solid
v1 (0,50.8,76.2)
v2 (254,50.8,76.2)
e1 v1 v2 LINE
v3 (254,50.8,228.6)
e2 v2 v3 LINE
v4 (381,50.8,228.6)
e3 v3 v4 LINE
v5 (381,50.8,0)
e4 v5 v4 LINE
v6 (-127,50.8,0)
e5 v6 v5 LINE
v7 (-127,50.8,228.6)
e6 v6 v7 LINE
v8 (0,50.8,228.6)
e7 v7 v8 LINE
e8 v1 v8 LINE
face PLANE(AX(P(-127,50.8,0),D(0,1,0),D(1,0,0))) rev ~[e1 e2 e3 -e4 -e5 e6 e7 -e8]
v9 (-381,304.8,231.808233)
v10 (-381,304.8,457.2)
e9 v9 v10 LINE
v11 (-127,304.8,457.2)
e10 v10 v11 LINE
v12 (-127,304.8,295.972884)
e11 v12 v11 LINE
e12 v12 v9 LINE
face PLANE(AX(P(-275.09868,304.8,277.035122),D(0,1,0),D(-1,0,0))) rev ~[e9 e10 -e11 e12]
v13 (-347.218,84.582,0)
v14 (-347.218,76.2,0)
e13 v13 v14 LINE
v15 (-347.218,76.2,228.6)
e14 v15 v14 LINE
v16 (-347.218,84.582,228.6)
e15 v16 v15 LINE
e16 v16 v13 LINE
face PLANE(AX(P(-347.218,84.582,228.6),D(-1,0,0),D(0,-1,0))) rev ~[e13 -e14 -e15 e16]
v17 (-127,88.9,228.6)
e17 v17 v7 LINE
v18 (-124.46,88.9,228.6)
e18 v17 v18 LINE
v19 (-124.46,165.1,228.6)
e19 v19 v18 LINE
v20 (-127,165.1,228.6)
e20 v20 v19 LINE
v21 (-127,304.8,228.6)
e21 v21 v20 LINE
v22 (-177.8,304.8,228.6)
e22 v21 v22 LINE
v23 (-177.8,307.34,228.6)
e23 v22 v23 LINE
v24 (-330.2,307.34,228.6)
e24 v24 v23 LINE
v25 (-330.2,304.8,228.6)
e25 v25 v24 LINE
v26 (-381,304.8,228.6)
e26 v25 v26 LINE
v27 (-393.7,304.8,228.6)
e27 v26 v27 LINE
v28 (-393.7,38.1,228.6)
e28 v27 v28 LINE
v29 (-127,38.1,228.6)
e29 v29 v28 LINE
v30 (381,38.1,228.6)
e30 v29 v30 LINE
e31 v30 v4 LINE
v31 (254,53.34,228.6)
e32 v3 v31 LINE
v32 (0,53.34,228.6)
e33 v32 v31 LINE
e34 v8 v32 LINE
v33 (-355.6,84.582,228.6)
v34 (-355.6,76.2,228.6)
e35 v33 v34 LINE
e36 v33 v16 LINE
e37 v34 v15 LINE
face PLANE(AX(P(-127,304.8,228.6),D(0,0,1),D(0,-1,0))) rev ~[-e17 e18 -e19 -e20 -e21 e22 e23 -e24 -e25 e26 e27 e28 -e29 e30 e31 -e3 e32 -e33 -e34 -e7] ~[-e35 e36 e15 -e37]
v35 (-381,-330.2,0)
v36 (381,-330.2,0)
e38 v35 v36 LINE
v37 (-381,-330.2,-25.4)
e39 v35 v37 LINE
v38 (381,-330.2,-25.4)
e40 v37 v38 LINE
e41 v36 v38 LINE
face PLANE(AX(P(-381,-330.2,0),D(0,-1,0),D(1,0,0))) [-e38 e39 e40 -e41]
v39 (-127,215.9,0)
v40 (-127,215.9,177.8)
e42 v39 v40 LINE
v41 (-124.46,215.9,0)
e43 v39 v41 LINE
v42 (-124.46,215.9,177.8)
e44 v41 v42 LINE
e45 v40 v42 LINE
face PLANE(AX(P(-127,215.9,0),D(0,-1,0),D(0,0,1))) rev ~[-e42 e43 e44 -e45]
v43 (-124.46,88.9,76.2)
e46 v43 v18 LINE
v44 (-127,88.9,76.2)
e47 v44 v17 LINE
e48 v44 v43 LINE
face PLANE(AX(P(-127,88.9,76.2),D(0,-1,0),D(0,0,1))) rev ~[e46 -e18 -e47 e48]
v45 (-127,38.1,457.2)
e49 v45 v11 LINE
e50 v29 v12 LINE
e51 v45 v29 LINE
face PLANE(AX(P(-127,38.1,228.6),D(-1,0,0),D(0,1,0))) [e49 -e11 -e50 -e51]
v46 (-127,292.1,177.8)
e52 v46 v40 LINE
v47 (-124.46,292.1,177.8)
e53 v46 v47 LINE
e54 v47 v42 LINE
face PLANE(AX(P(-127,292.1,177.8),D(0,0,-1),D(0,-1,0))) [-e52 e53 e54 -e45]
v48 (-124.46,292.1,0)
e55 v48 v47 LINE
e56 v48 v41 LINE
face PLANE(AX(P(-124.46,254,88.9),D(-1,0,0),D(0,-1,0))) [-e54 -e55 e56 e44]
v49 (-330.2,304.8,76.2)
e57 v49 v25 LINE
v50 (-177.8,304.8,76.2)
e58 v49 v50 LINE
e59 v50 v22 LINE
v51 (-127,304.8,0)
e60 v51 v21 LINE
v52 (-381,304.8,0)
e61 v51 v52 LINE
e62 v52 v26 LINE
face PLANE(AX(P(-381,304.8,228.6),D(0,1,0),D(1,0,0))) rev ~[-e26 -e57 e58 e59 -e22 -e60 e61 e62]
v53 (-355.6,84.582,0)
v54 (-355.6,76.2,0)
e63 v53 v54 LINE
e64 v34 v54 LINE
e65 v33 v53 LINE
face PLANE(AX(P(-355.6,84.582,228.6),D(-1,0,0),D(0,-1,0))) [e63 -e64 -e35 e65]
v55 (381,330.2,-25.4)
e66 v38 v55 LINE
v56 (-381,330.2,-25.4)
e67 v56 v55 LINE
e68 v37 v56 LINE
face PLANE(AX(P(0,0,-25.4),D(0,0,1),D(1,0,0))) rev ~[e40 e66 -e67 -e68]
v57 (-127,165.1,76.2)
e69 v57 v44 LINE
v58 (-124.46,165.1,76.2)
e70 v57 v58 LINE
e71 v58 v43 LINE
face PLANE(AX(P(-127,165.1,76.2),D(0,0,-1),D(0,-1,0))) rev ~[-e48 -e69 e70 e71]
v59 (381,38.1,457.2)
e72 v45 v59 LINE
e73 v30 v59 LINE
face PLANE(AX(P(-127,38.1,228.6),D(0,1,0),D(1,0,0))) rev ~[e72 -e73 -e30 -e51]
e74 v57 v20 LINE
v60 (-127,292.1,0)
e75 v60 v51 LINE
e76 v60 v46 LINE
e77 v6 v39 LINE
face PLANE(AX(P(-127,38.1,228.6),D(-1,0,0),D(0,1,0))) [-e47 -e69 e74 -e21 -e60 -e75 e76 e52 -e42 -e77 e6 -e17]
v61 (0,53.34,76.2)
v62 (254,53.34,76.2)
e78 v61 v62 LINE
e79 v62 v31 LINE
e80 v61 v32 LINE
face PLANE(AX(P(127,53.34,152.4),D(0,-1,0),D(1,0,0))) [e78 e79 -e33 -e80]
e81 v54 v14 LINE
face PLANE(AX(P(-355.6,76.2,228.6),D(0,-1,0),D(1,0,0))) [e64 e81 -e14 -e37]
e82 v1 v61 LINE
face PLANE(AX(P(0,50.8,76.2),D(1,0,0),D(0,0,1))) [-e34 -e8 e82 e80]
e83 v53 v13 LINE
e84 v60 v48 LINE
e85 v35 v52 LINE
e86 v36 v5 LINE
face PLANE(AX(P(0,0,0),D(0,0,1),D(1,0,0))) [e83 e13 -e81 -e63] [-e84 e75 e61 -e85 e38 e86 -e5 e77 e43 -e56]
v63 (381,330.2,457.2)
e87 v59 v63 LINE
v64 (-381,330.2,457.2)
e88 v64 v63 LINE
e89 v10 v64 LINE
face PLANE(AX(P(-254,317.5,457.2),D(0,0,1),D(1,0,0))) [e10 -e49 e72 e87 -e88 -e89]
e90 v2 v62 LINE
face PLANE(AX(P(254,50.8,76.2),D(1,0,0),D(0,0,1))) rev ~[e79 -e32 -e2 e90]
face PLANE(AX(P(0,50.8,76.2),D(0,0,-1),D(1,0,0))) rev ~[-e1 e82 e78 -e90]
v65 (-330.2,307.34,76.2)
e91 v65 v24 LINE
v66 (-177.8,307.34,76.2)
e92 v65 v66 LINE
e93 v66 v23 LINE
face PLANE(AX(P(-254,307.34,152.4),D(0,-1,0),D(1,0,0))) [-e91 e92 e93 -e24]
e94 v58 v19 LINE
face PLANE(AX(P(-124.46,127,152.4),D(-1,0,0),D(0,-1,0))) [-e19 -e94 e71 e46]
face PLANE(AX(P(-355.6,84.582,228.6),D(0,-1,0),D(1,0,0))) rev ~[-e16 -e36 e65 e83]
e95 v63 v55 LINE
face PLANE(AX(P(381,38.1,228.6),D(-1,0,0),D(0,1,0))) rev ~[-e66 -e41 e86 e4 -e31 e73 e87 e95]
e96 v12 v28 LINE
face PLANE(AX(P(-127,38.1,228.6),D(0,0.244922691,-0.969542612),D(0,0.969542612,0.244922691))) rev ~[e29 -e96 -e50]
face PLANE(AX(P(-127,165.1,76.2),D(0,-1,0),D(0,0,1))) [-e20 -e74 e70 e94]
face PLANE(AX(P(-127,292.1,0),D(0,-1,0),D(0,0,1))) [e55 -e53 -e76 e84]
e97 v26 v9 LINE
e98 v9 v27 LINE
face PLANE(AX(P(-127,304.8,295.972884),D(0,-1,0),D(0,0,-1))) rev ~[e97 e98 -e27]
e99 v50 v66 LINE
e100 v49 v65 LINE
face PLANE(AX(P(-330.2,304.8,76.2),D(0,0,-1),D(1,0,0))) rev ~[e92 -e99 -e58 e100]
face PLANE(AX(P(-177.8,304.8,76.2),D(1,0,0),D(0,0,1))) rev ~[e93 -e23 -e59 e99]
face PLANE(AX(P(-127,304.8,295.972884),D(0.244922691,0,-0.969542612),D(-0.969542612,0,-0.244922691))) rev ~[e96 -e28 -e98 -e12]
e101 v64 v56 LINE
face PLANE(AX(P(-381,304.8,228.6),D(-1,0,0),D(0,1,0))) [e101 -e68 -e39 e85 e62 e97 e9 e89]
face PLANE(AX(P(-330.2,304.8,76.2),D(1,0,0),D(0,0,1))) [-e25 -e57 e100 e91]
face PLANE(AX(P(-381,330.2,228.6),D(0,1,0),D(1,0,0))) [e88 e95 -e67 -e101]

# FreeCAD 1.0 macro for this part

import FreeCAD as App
import Part
import Sketcher
Q = App.Units.Quantity


def add_polygon(sketch, points):
    """Adds a closed chain of lines whose ends are joined by coincident constraints."""
    first, n = sketch.GeometryCount, len(points)
    for a, b in zip(points, points[1:] + points[:1]):
        sketch.addGeometry(Part.LineSegment(App.Vector(*a, 0), App.Vector(*b, 0)), False)
    for i in range(n):
        sketch.addConstraint(Sketcher.Constraint("Coincident", first + i, 2, first + (i + 1) % n, 1))

doc = App.newDocument("Part")
body = doc.addObject("PartDesign::Body", "Body")

sketch1 = body.newObject("Sketcher::SketchObject", "Sketch")
sketch1.AttachmentSupport = (doc.getObject("XY_Plane"), [""])
sketch1.MapMode = "FlatFace"
add_polygon(sketch1, [(-381, 330), (-381, -330), (381, -330), (381, 330)])
sketch1.addConstraint(Sketcher.Constraint("Vertical", 0))
sketch1.addConstraint(Sketcher.Constraint("Horizontal", 1))
sketch1.addConstraint(Sketcher.Constraint("Vertical", 2))
sketch1.addConstraint(Sketcher.Constraint("Horizontal", 3))
sketch1.addConstraint(Sketcher.Constraint("Symmetric", 0, 2, 2, 2, -1, 1))
sketch1.addConstraint(Sketcher.Constraint("DistanceX", 1, 1, 1, 2, Q("30 in")))
sketch1.addConstraint(Sketcher.Constraint("DistanceY", 0, 2, 0, 1, Q("26 in")))
pad1 = body.newObject("PartDesign::Pad", "Pad")
pad1.Profile = sketch1
pad1.Length = Q("1 in")
pad1.Reversed = True

sketch2 = body.newObject("Sketcher::SketchObject", "Sketch001")
sketch2.AttachmentSupport = (doc.getObject("XY_Plane"), [""])
sketch2.MapMode = "FlatFace"
add_polygon(sketch2, [(-127, 330), (-127, 51), (381, 51), (381, 330)])
sketch2.addConstraint(Sketcher.Constraint("Vertical", 0))
sketch2.addConstraint(Sketcher.Constraint("Horizontal", 1))
sketch2.addConstraint(Sketcher.Constraint("Vertical", 2))
sketch2.addConstraint(Sketcher.Constraint("Horizontal", 3))
sketch2.addConstraint(Sketcher.Constraint("DistanceX", 1, 1, 1, 2, Q("20 in")))
sketch2.addConstraint(Sketcher.Constraint("DistanceY", 0, 2, 0, 1, Q("11 in")))
sketch2.addConstraint(Sketcher.Constraint("DistanceX", 0, 2, -1, 1, Q("5 in")))
sketch2.addConstraint(Sketcher.Constraint("DistanceY", -1, 1, 0, 2, Q("2 in")))
pad2 = body.newObject("PartDesign::Pad", "Pad001")
pad2.Profile = sketch2
pad2.Length = Q("9 in")

sketch3 = body.newObject("Sketcher::SketchObject", "Sketch002")
sketch3.AttachmentSupport = (doc.getObject("XZ_Plane"), [""])
sketch3.MapMode = "FlatFace"
sketch3.AttachmentOffset = App.Placement(App.Vector(0, 0, -2 * 25.4), App.Rotation())
add_polygon(sketch3, [(0, 229), (0, 76), (254, 76), (254, 229)])
sketch3.addConstraint(Sketcher.Constraint("Vertical", 0))
sketch3.addConstraint(Sketcher.Constraint("Horizontal", 1))
sketch3.addConstraint(Sketcher.Constraint("Vertical", 2))
sketch3.addConstraint(Sketcher.Constraint("Horizontal", 3))
sketch3.addConstraint(Sketcher.Constraint("PointOnObject", 0, 2, -2))
sketch3.addConstraint(Sketcher.Constraint("DistanceX", 1, 1, 1, 2, Q("10 in")))
sketch3.addConstraint(Sketcher.Constraint("DistanceY", 0, 2, 0, 1, Q("6 in")))
sketch3.addConstraint(Sketcher.Constraint("DistanceY", -1, 1, 0, 2, Q("3 in")))
pocket1 = body.newObject("PartDesign::Pocket", "Pocket")
pocket1.Profile = sketch3
pocket1.Length = Q("0.1 in")

sketch4 = body.newObject("Sketcher::SketchObject", "Sketch003")
sketch4.AttachmentSupport = (doc.getObject("YZ_Plane"), [""])
sketch4.MapMode = "FlatFace"
sketch4.AttachmentOffset = App.Placement(App.Vector(0, 0, -5 * 25.4), App.Rotation())
add_polygon(sketch4, [(165, 229), (165, 76), (89, 76), (89, 229)])
add_polygon(sketch4, [(292, 178), (292, 0), (216, 0), (216, 178)])
sketch4.addConstraint(Sketcher.Constraint("Vertical", 0))
sketch4.addConstraint(Sketcher.Constraint("Horizontal", 1))
sketch4.addConstraint(Sketcher.Constraint("Vertical", 2))
sketch4.addConstraint(Sketcher.Constraint("Horizontal", 3))
sketch4.addConstraint(Sketcher.Constraint("Vertical", 4))
sketch4.addConstraint(Sketcher.Constraint("Horizontal", 5))
sketch4.addConstraint(Sketcher.Constraint("Vertical", 6))
sketch4.addConstraint(Sketcher.Constraint("Horizontal", 7))
sketch4.addConstraint(Sketcher.Constraint("PointOnObject", 4, 2, -1))
sketch4.addConstraint(Sketcher.Constraint("Equal", 3, 5))
sketch4.addConstraint(Sketcher.Constraint("DistanceX", 1, 2, 1, 1, Q("3 in")))
sketch4.addConstraint(Sketcher.Constraint("DistanceY", 0, 2, 0, 1, Q("6 in")))
sketch4.addConstraint(Sketcher.Constraint("DistanceY", 4, 2, 4, 1, Q("7 in")))
sketch4.addConstraint(Sketcher.Constraint("DistanceY", -1, 1, 0, 2, Q("3 in")))
sketch4.addConstraint(Sketcher.Constraint("DistanceX", 0, 2, 4, 2, Q("5 in")))
sketch4.addConstraint(Sketcher.Constraint("DistanceX", -1, 1, 0, 2, Q("6.5 in")))
pocket2 = body.newObject("PartDesign::Pocket", "Pocket001")
pocket2.Profile = sketch4
pocket2.Length = Q("0.1 in")
pocket2.Reversed = True
body2 = doc.addObject("PartDesign::Body", "Body001")

sketch5 = body2.newObject("Sketcher::SketchObject", "Sketch004")
sketch5.AttachmentSupport = (doc.getObject("XZ_Plane001"), [""])
sketch5.MapMode = "FlatFace"
sketch5.AttachmentOffset = App.Placement(App.Vector(0, 0, -13 * 25.4), App.Rotation())
add_polygon(sketch5, [(-127, 229), (-127, 0), (-381, 0), (-381, 229)])
sketch5.addConstraint(Sketcher.Constraint("Vertical", 0))
sketch5.addConstraint(Sketcher.Constraint("Horizontal", 1))
sketch5.addConstraint(Sketcher.Constraint("Vertical", 2))
sketch5.addConstraint(Sketcher.Constraint("Horizontal", 3))
sketch5.addConstraint(Sketcher.Constraint("PointOnObject", 0, 2, -1))
sketch5.addConstraint(Sketcher.Constraint("DistanceX", 1, 2, 1, 1, Q("10 in")))
sketch5.addConstraint(Sketcher.Constraint("DistanceY", 0, 2, 0, 1, Q("9 in")))
sketch5.addConstraint(Sketcher.Constraint("DistanceX", 0, 2, -1, 1, Q("5 in")))
pad3 = body2.newObject("PartDesign::Pad", "Pad002")
pad3.Profile = sketch5
pad3.Length = Q("1 in")
doc.recompute()

boolean = body2.newObject("PartDesign::Boolean", "Boolean")
boolean.Type = "Fuse"
boolean.addObjects([body])

sketch6 = body2.newObject("Sketcher::SketchObject", "Sketch005")
sketch6.AttachmentSupport = (doc.getObject("XZ_Plane001"), [""])
sketch6.MapMode = "FlatFace"
sketch6.AttachmentOffset = App.Placement(App.Vector(0, 0, -12 * 25.4), App.Rotation())
add_polygon(sketch6, [(-330, 229), (-330, 76), (-178, 76), (-178, 229)])
sketch6.addConstraint(Sketcher.Constraint("Vertical", 0))
sketch6.addConstraint(Sketcher.Constraint("Horizontal", 1))
sketch6.addConstraint(Sketcher.Constraint("Vertical", 2))
sketch6.addConstraint(Sketcher.Constraint("Horizontal", 3))
sketch6.addConstraint(Sketcher.Constraint("Equal", 3, 0))
sketch6.addConstraint(Sketcher.Constraint("DistanceX", 1, 1, 1, 2, Q("6 in")))
sketch6.addConstraint(Sketcher.Constraint("DistanceX", 0, 2, -1, 1, Q("13 in")))
sketch6.addConstraint(Sketcher.Constraint("DistanceY", -1, 1, 0, 2, Q("3 in")))
pocket3 = body2.newObject("PartDesign::Pocket", "Pocket002")
pocket3.Profile = sketch6
pocket3.Length = Q("0.1 in")

sketch7 = body2.newObject("Sketcher::SketchObject", "Sketch006")
sketch7.AttachmentSupport = (doc.getObject("XY_Plane001"), [""])
sketch7.MapMode = "FlatFace"
sketch7.AttachmentOffset = App.Placement(App.Vector(0, 0, 9 * 25.4), App.Rotation())
add_polygon(sketch7, [(-127, 330), (-127, 38), (381, 38), (381, 330)])
sketch7.addConstraint(Sketcher.Constraint("Vertical", 0))
sketch7.addConstraint(Sketcher.Constraint("Horizontal", 1))
sketch7.addConstraint(Sketcher.Constraint("Vertical", 2))
sketch7.addConstraint(Sketcher.Constraint("Horizontal", 3))
sketch7.addConstraint(Sketcher.Constraint("DistanceX", 1, 1, 1, 2, Q("20 in")))
sketch7.addConstraint(Sketcher.Constraint("DistanceY", 0, 2, 0, 1, Q("11.5 in")))
sketch7.addConstraint(Sketcher.Constraint("DistanceX", 0, 2, -1, 1, Q("5 in")))
sketch7.addConstraint(Sketcher.Constraint("DistanceY", -1, 1, 2, 2, Q("13 in")))
pad4 = body2.newObject("PartDesign::Pad", "Pad003")
pad4.Profile = sketch7
pad4.Length = Q("9 in")

sketch8 = body2.newObject("Sketcher::SketchObject", "Sketch007")
sketch8.AttachmentSupport = (doc.getObject("XY_Plane001"), [""])
sketch8.MapMode = "FlatFace"
sketch8.AttachmentOffset = App.Placement(App.Vector(0, 0, 9 * 25.4), App.Rotation())
add_polygon(sketch8, [(-381, 330), (-381, 305), (-127, 305), (-127, 330)])
sketch8.addConstraint(Sketcher.Constraint("Vertical", 0))
sketch8.addConstraint(Sketcher.Constraint("Horizontal", 1))
sketch8.addConstraint(Sketcher.Constraint("Vertical", 2))
sketch8.addConstraint(Sketcher.Constraint("Horizontal", 3))
sketch8.addConstraint(Sketcher.Constraint("DistanceX", 1, 1, 1, 2, Q("10 in")))
sketch8.addConstraint(Sketcher.Constraint("DistanceY", 0, 2, 0, 1, Q("1 in")))
sketch8.addConstraint(Sketcher.Constraint("DistanceX", 0, 2, -1, 1, Q("15 in")))
sketch8.addConstraint(Sketcher.Constraint("DistanceY", -1, 1, 0, 2, Q("12 in")))
pad5 = body2.newObject("PartDesign::Pad", "Pad004")
pad5.Profile = sketch8
pad5.Length = Q("9 in")

sketch9 = body2.newObject("Sketcher::SketchObject", "Sketch008")
sketch9.AttachmentSupport = (doc.getObject("YZ_Plane001"), [""])
sketch9.MapMode = "FlatFace"
sketch9.AttachmentOffset = App.Placement(App.Vector(0, 0, -5 * 25.4), App.Rotation())
add_polygon(sketch9, [(305, 296), (305, 229), (38, 229)])
sketch9.addConstraint(Sketcher.Constraint("Vertical", 0))
sketch9.addConstraint(Sketcher.Constraint("Horizontal", 1))
sketch9.addConstraint(Sketcher.Constraint("DistanceX", 1, 2, 1, 1, Q("10.5 in")))
sketch9.addConstraint(Sketcher.Constraint("DistanceX", -1, 1, 0, 2, Q("12 in")))
sketch9.addConstraint(Sketcher.Constraint("DistanceY", -1, 1, 0, 2, Q("9 in")))
sketch9.addConstraint(Sketcher.Constraint("DistanceY", 0, 2, 0, 1, Q("67.372884 mm")))
pad6 = body2.newObject("PartDesign::Pad", "Pad005")
pad6.Profile = sketch9
pad6.Length = Q("10.5 in")
pad6.Reversed = True

sketch10 = body2.newObject("Sketcher::SketchObject", "Sketch009")
sketch10.AttachmentSupport = (doc.getObject("XZ_Plane001"), [""])
sketch10.MapMode = "FlatFace"
sketch10.AttachmentOffset = App.Placement(App.Vector(0, 0, -12 * 25.4), App.Rotation())
add_polygon(sketch10, [(-127, 296), (-394, 229), (-394, 296)])
sketch10.addConstraint(Sketcher.Constraint("Vertical", 1))
sketch10.addConstraint(Sketcher.Constraint("Horizontal", 2))
sketch10.addConstraint(Sketcher.Constraint("DistanceX", 2, 1, 2, 2, Q("10.5 in")))
sketch10.addConstraint(Sketcher.Constraint("DistanceY", -1, 1, 0, 2, Q("9 in")))
sketch10.addConstraint(Sketcher.Constraint("DistanceX", 2, 2, -1, 1, Q("5 in")))
sketch10.addConstraint(Sketcher.Constraint("DistanceY", 1, 1, 1, 2, Q("67.372884 mm")))
pocket4 = body2.newObject("PartDesign::Pocket", "Pocket003")
pocket4.Profile = sketch10
pocket4.Type = "ThroughAll"
pocket4.Reversed = True

sketch11 = body2.newObject("Sketcher::SketchObject", "Sketch010")
sketch11.AttachmentSupport = (doc.getObject("XY_Plane001"), [""])
sketch11.MapMode = "FlatFace"
sketch11.AttachmentOffset = App.Placement(App.Vector(0, 0, 9 * 25.4), App.Rotation())
add_polygon(sketch11, [(-356, 76), (-356, 85), (-347, 85), (-347, 76)])
sketch11.addConstraint(Sketcher.Constraint("Vertical", 0))
sketch11.addConstraint(Sketcher.Constraint("Horizontal", 1))
sketch11.addConstraint(Sketcher.Constraint("Vertical", 2))
sketch11.addConstraint(Sketcher.Constraint("Horizontal", 3))
sketch11.addConstraint(Sketcher.Constraint("Equal", 3, 0))
sketch11.addConstraint(Sketcher.Constraint("DistanceX", 0, 2, -1, 1, Q("14 in")))
sketch11.addConstraint(Sketcher.Constraint("DistanceY", -1, 1, 2, 2, Q("3 in")))
sketch11.addConstraint(Sketcher.Constraint("DistanceX", 1, 1, 1, 2, Q("0.33 in")))
pad7 = body2.newObject("PartDesign::Pad", "Pad006")
pad7.Profile = sketch11
pad7.Length = Q("9 in")
pad7.Reversed = True

doc.recompute()
